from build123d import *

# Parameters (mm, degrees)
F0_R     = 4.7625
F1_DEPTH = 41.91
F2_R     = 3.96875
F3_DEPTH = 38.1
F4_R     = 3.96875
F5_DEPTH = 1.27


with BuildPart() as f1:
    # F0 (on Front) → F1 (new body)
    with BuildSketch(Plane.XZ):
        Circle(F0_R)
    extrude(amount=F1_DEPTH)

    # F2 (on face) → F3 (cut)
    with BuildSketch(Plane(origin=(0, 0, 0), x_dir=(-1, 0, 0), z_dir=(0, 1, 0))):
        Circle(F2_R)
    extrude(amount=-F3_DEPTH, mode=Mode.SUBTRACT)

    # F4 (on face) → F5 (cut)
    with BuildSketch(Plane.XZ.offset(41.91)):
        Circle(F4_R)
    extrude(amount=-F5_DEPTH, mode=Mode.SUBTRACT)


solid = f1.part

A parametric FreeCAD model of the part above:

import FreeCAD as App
import Part
import Sketcher

V = App.Vector
Q = App.Units.Quantity

doc = App.newDocument("Part")
params = doc.addObject("Spreadsheet::Sheet", "Params")
for row, (alias, value) in enumerate([
    ("sketch1_diameter", "0.375 in"),
    ("pad1_length", "1.65 in"),
    ("sketch2_diameter", "0.3125 in"),
    ("pocket1_length", "1.5 in"),
    ("sketch3_diameter", "0.3125 in"),
    ("pocket2_length", "0.05 in"),
], start=1):
    params.set(f"A{row}", alias)
    params.set(f"B{row}", "=" + value)
    params.setAlias(f"B{row}", alias)

body = doc.addObject("PartDesign::Body", "Body")

sketch1 = doc.addObject("Sketcher::SketchObject", "Sketch")
body.addObject(sketch1)
sketch1.AttachmentSupport = (doc.XZ_Plane, [""])
sketch1.MapMode = "FlatFace"
sketch1.addGeometry(Part.Circle(V(0, 0, 0), V(0, 0, 1), 4.8), False)
sketch1.addConstraint([
    Sketcher.Constraint("Coincident", 0, 3, -1, 1),
    Sketcher.Constraint("Diameter", 0, Q("0.375 in")),
])
sketch1.setExpression("Constraints[1]", "Params.sketch1_diameter")
pad1 = doc.addObject("PartDesign::Pad", "Pad")
body.addObject(pad1)
pad1.Profile = sketch1
pad1.setExpression("Length", "Params.pad1_length")

sketch2 = doc.addObject("Sketcher::SketchObject", "Sketch001")
body.addObject(sketch2)
sketch2.AttachmentSupport = (doc.XZ_Plane, [""])
sketch2.MapMode = "FlatFace"
sketch2.addGeometry(Part.Circle(V(0, 0, 0), V(0, 0, 1), 4), False)
sketch2.addConstraint([
    Sketcher.Constraint("Coincident", 0, 3, -1, 1),
    Sketcher.Constraint("Diameter", 0, Q("0.3125 in")),
])
sketch2.setExpression("Constraints[1]", "Params.sketch2_diameter")
pocket1 = doc.addObject("PartDesign::Pocket", "Pocket")
body.addObject(pocket1)
pocket1.Profile = sketch2
pocket1.setExpression("Length", "Params.pocket1_length")
pocket1.Reversed = True

sketch3 = doc.addObject("Sketcher::SketchObject", "Sketch002")
body.addObject(sketch3)
sketch3.AttachmentSupport = (doc.XZ_Plane, [""])
sketch3.MapMode = "FlatFace"
sketch3.AttachmentOffset = App.Placement(V(0, 0, 1.65 * 25.4), App.Rotation())
sketch3.addGeometry(Part.Circle(V(0, 0, 0), V(0, 0, 1), 4), False)
sketch3.addConstraint([
    Sketcher.Constraint("Coincident", 0, 3, -1, 1),
    Sketcher.Constraint("Diameter", 0, Q("0.3125 in")),
])
sketch3.setExpression("Constraints[1]", "Params.sketch3_diameter")
pocket2 = doc.addObject("PartDesign::Pocket", "Pocket001")
body.addObject(pocket2)
pocket2.Profile = sketch3
pocket2.setExpression("Length", "Params.pocket2_length")

doc.recompute()
